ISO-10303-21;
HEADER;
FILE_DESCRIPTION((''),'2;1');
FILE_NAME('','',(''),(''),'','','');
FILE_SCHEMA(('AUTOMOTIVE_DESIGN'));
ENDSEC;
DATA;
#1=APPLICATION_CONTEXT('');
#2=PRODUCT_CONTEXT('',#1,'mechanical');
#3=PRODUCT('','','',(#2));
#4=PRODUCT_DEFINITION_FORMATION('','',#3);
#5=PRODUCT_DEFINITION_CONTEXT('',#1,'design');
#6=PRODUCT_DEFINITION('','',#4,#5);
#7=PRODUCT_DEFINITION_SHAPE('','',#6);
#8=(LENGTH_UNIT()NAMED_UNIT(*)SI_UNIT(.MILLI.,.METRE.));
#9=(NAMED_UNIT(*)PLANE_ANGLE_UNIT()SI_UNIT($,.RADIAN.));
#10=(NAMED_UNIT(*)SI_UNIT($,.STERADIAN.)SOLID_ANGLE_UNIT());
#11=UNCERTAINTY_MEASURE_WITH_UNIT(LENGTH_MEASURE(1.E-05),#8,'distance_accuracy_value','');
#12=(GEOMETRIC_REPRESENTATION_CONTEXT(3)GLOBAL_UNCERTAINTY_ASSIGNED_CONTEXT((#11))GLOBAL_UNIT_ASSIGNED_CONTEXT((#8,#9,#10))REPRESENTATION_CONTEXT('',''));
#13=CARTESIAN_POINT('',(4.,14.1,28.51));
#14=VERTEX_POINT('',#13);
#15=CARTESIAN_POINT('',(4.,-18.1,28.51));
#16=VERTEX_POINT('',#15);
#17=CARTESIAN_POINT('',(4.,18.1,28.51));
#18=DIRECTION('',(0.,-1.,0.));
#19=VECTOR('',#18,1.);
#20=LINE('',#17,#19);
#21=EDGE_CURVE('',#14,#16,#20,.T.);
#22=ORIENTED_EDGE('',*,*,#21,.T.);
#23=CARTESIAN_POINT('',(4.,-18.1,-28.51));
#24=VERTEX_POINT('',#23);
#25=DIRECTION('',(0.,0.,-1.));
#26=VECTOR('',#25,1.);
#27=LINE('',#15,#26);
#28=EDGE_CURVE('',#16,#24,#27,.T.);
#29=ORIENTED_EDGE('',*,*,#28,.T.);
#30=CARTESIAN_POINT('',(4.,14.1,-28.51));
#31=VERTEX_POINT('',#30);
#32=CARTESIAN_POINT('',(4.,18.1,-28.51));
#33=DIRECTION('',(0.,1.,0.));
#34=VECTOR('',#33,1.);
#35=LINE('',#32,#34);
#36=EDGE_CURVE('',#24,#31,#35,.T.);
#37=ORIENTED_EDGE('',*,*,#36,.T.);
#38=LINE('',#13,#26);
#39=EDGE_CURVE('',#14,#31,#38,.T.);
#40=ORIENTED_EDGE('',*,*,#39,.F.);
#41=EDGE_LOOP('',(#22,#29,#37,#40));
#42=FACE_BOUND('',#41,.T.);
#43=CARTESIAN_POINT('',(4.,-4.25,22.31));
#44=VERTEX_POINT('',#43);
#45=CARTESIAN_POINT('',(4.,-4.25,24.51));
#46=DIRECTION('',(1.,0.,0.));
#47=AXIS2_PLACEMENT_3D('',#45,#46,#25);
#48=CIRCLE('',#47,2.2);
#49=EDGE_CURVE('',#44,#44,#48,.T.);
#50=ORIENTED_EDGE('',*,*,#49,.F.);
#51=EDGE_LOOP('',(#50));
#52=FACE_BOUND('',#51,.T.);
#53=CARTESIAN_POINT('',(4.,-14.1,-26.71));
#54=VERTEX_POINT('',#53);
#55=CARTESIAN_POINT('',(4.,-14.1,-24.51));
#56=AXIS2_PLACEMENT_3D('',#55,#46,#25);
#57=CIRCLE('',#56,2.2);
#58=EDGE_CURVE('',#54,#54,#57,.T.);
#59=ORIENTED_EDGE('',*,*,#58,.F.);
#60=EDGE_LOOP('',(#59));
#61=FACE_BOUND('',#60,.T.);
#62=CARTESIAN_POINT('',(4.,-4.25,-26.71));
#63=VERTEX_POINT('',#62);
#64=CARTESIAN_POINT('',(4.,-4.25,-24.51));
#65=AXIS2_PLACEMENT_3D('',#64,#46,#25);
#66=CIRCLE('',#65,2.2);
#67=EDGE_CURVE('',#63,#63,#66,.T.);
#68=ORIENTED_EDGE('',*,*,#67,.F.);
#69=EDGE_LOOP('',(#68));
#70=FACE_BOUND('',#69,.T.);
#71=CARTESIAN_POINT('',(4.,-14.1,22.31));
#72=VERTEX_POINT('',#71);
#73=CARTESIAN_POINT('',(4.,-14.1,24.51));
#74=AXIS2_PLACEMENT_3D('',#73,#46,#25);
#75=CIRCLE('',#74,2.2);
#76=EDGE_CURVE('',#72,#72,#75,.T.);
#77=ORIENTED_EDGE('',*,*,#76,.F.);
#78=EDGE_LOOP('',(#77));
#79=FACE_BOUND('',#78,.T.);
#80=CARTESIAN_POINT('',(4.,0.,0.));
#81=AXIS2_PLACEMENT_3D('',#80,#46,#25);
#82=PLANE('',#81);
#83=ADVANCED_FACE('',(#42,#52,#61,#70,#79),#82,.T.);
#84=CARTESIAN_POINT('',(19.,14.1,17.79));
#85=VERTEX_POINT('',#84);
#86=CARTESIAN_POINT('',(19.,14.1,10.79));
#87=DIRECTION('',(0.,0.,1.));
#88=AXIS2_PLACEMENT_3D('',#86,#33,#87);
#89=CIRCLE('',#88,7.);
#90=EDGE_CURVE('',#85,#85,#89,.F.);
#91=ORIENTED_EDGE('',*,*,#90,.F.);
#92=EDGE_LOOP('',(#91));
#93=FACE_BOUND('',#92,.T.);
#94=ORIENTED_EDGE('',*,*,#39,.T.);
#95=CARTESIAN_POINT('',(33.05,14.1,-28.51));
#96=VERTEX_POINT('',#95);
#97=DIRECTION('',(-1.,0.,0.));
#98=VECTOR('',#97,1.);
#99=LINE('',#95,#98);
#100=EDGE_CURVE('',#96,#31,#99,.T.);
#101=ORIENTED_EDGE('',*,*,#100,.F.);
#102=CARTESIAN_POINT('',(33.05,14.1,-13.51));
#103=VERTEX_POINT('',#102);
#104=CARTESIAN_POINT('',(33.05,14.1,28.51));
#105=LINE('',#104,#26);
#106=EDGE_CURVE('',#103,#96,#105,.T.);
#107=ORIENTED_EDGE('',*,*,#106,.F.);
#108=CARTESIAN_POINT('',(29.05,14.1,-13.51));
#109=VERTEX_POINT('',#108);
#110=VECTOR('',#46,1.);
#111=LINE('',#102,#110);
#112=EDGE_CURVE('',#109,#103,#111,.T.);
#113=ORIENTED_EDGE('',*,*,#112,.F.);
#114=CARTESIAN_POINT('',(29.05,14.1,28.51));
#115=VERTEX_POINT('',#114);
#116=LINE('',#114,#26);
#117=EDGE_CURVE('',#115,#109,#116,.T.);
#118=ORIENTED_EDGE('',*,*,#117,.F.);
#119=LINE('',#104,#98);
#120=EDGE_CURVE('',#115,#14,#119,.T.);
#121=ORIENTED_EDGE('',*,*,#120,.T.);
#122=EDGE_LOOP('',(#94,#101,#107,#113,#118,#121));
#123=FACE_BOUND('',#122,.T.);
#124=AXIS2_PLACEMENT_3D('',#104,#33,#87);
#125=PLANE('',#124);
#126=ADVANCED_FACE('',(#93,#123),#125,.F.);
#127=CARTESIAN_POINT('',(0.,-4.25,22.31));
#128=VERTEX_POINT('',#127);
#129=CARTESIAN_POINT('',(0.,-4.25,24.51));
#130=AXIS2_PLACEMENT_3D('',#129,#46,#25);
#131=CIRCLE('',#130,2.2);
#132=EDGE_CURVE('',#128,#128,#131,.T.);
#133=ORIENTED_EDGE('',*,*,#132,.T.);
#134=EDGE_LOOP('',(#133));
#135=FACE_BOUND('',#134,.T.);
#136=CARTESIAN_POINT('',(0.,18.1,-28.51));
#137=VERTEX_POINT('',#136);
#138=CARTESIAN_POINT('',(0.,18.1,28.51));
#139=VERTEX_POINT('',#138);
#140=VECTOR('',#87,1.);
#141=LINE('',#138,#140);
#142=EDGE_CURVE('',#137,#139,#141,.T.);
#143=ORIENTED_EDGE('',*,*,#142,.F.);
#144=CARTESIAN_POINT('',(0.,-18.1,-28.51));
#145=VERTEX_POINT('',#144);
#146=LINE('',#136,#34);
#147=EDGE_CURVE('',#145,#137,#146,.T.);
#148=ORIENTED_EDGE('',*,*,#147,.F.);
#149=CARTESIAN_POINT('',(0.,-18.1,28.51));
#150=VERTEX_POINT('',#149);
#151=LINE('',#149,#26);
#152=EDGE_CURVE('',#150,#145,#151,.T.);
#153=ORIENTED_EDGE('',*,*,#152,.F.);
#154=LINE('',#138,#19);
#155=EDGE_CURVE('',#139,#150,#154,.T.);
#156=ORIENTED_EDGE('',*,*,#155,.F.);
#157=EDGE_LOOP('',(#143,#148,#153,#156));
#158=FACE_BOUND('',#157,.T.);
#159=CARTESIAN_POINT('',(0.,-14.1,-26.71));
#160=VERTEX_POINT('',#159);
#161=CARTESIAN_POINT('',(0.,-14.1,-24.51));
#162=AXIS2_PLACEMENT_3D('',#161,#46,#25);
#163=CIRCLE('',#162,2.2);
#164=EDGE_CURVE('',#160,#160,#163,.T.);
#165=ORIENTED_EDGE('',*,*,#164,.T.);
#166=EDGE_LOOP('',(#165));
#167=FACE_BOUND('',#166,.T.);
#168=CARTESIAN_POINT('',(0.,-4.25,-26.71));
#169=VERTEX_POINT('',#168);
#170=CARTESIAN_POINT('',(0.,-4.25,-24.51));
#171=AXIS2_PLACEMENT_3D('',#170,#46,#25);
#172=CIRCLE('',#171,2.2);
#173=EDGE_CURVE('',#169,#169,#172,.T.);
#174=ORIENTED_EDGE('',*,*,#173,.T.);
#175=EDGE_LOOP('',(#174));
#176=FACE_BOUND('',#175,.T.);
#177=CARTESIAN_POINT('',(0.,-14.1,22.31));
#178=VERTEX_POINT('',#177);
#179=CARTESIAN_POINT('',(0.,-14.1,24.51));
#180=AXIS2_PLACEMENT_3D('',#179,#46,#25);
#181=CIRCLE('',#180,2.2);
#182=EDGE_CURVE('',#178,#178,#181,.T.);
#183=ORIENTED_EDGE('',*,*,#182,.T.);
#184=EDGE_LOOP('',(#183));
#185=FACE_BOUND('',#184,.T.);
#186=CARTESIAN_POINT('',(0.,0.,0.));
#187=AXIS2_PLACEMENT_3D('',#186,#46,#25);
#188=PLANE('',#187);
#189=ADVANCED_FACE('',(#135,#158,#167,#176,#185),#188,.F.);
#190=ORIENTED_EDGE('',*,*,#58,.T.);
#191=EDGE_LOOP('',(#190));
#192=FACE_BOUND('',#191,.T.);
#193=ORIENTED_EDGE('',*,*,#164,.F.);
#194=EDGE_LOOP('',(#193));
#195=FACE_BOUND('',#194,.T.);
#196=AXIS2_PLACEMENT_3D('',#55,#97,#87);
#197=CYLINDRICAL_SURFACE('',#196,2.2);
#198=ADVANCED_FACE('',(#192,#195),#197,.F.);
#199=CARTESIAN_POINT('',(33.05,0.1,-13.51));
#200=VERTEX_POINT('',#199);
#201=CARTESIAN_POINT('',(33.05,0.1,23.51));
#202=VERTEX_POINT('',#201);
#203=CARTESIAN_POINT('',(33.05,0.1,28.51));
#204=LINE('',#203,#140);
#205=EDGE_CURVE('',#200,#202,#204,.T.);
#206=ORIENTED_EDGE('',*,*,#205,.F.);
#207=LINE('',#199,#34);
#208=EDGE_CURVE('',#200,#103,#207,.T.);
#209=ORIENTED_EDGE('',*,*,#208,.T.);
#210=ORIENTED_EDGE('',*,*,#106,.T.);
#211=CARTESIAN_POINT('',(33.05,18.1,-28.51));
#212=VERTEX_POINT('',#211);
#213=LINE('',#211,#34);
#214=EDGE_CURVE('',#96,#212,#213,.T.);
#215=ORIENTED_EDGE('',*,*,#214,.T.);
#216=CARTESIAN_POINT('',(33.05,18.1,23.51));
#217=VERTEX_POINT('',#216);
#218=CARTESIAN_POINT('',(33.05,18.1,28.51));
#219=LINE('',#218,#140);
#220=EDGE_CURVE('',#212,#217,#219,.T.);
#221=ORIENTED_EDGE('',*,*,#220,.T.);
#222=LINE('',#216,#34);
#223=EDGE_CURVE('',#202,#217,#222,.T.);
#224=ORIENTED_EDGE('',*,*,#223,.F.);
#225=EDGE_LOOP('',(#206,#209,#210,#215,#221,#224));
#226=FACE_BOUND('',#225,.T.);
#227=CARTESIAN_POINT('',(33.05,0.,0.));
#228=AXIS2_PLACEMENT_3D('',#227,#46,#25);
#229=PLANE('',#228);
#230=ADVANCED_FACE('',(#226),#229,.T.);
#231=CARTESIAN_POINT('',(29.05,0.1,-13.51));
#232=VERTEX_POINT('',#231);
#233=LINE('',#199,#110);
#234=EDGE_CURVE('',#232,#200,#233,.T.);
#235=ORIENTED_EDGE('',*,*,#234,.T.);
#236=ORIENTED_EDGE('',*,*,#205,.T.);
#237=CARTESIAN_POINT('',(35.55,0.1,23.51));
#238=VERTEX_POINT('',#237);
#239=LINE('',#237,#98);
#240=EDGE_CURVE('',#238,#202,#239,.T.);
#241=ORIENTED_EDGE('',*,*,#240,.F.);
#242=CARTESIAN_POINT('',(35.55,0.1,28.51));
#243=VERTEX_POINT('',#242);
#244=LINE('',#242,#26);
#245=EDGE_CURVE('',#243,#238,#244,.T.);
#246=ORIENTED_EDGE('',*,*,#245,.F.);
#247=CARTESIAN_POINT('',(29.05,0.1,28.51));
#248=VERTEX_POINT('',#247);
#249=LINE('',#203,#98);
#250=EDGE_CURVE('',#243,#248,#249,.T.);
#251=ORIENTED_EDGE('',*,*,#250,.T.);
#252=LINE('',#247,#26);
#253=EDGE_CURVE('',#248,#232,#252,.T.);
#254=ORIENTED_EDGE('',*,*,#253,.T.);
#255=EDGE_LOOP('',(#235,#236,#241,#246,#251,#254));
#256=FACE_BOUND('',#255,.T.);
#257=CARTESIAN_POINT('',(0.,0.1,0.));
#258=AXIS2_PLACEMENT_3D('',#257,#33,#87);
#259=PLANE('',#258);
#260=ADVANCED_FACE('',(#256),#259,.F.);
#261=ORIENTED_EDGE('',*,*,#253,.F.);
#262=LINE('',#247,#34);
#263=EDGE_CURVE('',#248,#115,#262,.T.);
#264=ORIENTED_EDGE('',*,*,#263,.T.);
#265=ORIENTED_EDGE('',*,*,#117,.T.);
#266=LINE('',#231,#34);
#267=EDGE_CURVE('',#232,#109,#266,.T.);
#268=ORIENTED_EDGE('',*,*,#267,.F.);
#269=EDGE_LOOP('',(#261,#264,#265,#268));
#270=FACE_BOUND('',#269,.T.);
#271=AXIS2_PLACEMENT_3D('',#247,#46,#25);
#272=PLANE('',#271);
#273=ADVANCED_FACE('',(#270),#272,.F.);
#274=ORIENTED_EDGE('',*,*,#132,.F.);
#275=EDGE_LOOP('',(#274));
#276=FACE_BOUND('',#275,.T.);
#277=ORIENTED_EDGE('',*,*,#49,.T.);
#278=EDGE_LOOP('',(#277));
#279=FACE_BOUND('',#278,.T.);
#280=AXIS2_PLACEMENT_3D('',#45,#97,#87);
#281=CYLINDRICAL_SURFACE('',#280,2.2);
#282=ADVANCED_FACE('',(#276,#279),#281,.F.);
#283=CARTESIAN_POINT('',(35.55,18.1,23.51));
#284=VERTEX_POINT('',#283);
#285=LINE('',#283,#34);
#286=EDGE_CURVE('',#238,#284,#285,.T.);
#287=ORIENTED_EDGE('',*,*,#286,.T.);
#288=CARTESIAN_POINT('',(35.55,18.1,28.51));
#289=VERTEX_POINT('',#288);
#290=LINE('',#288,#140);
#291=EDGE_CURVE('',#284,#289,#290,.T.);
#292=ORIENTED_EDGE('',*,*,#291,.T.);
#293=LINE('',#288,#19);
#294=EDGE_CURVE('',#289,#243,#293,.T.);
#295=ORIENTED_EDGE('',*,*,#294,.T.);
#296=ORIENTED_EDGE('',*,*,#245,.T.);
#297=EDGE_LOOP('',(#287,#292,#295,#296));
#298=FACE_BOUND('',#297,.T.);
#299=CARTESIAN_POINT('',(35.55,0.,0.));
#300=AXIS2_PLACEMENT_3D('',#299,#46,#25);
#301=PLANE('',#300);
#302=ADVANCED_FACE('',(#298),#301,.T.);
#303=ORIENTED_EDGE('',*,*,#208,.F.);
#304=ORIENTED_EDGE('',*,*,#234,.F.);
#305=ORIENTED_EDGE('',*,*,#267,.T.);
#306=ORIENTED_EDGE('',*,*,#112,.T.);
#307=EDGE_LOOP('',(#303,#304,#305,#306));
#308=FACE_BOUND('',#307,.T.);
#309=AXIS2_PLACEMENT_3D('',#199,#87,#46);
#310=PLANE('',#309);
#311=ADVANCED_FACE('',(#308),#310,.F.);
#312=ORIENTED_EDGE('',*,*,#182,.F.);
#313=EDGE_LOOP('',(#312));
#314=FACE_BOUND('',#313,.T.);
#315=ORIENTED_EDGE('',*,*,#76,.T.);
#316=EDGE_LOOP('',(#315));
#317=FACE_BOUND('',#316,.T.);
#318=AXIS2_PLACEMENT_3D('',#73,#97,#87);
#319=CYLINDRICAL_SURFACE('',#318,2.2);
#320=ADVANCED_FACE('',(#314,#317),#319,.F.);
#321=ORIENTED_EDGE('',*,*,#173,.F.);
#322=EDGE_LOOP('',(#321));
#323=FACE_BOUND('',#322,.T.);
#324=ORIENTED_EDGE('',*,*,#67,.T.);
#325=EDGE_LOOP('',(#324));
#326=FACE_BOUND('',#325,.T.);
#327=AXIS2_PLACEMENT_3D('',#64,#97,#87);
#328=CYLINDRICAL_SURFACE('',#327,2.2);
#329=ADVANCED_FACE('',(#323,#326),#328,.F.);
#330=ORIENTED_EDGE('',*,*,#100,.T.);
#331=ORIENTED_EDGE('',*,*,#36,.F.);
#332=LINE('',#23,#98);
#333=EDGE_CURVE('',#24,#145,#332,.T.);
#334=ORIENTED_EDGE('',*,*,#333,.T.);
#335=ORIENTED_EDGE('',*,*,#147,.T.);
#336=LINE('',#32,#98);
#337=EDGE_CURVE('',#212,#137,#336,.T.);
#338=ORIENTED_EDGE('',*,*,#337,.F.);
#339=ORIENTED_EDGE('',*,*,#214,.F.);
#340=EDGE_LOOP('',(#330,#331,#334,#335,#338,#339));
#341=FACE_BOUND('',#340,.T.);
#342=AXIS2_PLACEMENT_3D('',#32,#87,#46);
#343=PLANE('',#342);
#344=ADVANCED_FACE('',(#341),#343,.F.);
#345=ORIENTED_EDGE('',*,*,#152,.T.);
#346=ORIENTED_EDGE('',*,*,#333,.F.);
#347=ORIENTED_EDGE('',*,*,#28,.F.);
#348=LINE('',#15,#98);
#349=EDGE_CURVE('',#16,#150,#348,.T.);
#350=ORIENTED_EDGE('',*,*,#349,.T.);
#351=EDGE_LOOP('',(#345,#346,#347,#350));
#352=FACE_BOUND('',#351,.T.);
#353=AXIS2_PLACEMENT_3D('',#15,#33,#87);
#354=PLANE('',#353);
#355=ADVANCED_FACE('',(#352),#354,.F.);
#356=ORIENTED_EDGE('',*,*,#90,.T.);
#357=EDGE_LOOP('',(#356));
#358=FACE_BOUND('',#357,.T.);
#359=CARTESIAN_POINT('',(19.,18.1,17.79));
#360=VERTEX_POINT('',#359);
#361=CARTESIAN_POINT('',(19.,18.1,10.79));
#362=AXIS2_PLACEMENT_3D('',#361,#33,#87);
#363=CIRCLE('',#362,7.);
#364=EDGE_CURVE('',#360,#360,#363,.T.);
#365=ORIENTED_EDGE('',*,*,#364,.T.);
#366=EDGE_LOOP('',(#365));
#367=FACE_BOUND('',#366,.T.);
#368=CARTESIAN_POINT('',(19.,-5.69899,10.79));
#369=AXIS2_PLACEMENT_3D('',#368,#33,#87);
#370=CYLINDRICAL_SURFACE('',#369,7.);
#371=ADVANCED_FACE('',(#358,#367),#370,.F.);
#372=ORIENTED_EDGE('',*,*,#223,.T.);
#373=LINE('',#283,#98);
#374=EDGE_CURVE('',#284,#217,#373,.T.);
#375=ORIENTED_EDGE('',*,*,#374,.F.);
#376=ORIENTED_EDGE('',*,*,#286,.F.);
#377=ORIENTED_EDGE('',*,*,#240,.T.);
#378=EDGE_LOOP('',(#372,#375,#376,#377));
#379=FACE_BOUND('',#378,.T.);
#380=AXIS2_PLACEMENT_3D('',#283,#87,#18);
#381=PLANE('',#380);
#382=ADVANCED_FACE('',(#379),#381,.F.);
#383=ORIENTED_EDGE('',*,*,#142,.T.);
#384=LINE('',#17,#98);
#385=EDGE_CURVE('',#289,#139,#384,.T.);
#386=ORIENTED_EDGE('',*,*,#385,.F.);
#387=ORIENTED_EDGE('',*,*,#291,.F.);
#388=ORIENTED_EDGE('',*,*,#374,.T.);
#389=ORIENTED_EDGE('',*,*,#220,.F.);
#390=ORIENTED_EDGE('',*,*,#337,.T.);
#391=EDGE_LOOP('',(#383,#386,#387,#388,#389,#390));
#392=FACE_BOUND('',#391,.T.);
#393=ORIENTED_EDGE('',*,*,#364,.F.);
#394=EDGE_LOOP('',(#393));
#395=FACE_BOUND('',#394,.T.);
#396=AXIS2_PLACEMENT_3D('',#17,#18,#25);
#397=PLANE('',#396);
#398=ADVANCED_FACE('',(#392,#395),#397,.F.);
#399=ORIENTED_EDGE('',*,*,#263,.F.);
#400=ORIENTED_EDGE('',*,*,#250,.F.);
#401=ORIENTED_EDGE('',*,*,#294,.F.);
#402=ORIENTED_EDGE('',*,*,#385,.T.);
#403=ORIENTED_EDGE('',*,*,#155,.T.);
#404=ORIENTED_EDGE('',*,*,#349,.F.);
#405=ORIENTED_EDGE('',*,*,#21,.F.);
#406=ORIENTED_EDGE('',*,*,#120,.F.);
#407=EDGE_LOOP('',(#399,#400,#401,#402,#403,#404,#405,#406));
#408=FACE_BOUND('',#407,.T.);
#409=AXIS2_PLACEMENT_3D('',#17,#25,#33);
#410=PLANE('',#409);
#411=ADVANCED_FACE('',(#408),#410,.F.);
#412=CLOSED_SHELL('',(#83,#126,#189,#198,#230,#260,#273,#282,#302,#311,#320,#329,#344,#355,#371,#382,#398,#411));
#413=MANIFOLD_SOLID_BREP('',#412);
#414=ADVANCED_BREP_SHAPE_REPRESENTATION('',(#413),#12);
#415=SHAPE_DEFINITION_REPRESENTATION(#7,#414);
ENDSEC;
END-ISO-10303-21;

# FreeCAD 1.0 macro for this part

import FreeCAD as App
import Part
import Sketcher
Q = App.Units.Quantity


def add_polygon(sketch, points):
    """Adds a closed chain of lines whose ends are joined by coincident constraints."""
    first, n = sketch.GeometryCount, len(points)
    for a, b in zip(points, points[1:] + points[:1]):
        sketch.addGeometry(Part.LineSegment(App.Vector(*a, 0), App.Vector(*b, 0)), False)
    for i in range(n):
        sketch.addConstraint(Sketcher.Constraint("Coincident", first + i, 2, first + (i + 1) % n, 1))

doc = App.newDocument("Part")
body = doc.addObject("PartDesign::Body", "Body")

# Sketch on YZ plane
sketch1 = body.newObject("Sketcher::SketchObject", "Sketch")
sketch1.AttachmentSupport = (doc.getObject("YZ_Plane"), [""])
sketch1.MapMode = "FlatFace"
add_polygon(sketch1, [(18.1, 28.5), (-18.1, 28.5), (-18.1, -28.5), (18.1, -28.5)])  # lines 0-3
sketch1.addGeometry(Part.Circle(App.Vector(-14.1, 24.5, 0), App.Vector(0, 0, 1), 2.2), False)  # 4
sketch1.addGeometry(Part.Circle(App.Vector(-14.1, -24.5, 0), App.Vector(0, 0, 1), 2.2), False)  # 5
sketch1.addGeometry(Part.Circle(App.Vector(-4.2, 24.5, 0), App.Vector(0, 0, 1), 2.2), False)  # 6
sketch1.addGeometry(Part.Circle(App.Vector(-4.2, -24.5, 0), App.Vector(0, 0, 1), 2.2), False)  # 7
sketch1.addConstraint([
    Sketcher.Constraint("Horizontal", 0),
    Sketcher.Constraint("Vertical", 1),
    Sketcher.Constraint("Horizontal", 2),
    Sketcher.Constraint("Vertical", 3),
    Sketcher.Constraint("Equal", 4, 5),
    Sketcher.Constraint("Equal", 5, 6),
    Sketcher.Constraint("Equal", 6, 7),
    Sketcher.Constraint("Symmetric", 0, 2, 2, 2, -1, 1),
    Sketcher.Constraint("Symmetric", 4, 3, 5, 3, -1),
    Sketcher.Constraint("Symmetric", 6, 3, 7, 3, -1),
    Sketcher.Constraint("Horizontal", 4, 3, 6, 3),
    Sketcher.Constraint("Diameter", 4, Q("4.4 mm")),
    Sketcher.Constraint("DistanceX", 0, 2, 0, 1, Q("36.2 mm")),
    Sketcher.Constraint("DistanceX", 0, 2, 4, 3, Q("4 mm")),
    Sketcher.Constraint("DistanceY", 4, 3, 0, 2, Q("4 mm")),
    Sketcher.Constraint("DistanceY", 1, 2, 1, 1, Q("57.02 mm")),
    Sketcher.Constraint("DistanceX", 6, 3, -1, 1, Q("4.25 mm")),
])
pad1 = body.newObject("PartDesign::Pad", "Pad")
pad1.Profile = sketch1
pad1.Length = 4

# Sketch on YZ plane
sketch2 = body.newObject("Sketcher::SketchObject", "Sketch001")
sketch2.AttachmentSupport = (doc.getObject("YZ_Plane"), [""])
sketch2.MapMode = "FlatFace"
sketch2.AttachmentOffset = App.Placement(App.Vector(0, 0, 4), App.Rotation())
add_polygon(sketch2, [(18.1, 28.5), (14.1, 28.5), (14.1, -28.5), (18.1, -28.5)])  # lines 0-3
sketch2.addConstraint([
    Sketcher.Constraint("Horizontal", 0),
    Sketcher.Constraint("Vertical", 1),
    Sketcher.Constraint("Horizontal", 2),
    Sketcher.Constraint("Vertical", 3),
    Sketcher.Constraint("DistanceX", 0, 2, 0, 1, Q("4 mm")),
    Sketcher.Constraint("DistanceY", 1, 2, 1, 1, Q("57.02 mm")),
    Sketcher.Constraint("DistanceX", -1, 1, 0, 2, Q("14.1 mm")),
    Sketcher.Constraint("DistanceY", -1, 1, 0, 2, Q("28.51 mm")),
])
pad2 = body.newObject("PartDesign::Pad", "Pad001")
pad2.Profile = sketch2
pad2.Length = 29.05

# Sketch on XZ plane
sketch3 = body.newObject("Sketcher::SketchObject", "Sketch002")
sketch3.AttachmentSupport = (doc.getObject("XZ_Plane"), [""])
sketch3.MapMode = "FlatFace"
sketch3.AttachmentOffset = App.Placement(App.Vector(0, 0, -14.1), App.Rotation())
add_polygon(sketch3, [(29.1, 28.5), (29.1, -13.5), (33, -13.5), (33, 28.5)])  # lines 0-3
sketch3.addConstraint([
    Sketcher.Constraint("Vertical", 0),
    Sketcher.Constraint("Horizontal", 1),
    Sketcher.Constraint("Vertical", 2),
    Sketcher.Constraint("Horizontal", 3),
    Sketcher.Constraint("DistanceX", 1, 1, 1, 2, Q("4 mm")),
    Sketcher.Constraint("DistanceY", 0, 2, 0, 1, Q("42.02 mm")),
    Sketcher.Constraint("DistanceX", -1, 1, 0, 2, Q("29.05 mm")),
    Sketcher.Constraint("DistanceY", 0, 2, -1, 1, Q("13.51 mm")),
])
pad3 = body.newObject("PartDesign::Pad", "Pad002")
pad3.Profile = sketch3
pad3.Length = 14

# Sketch on XZ plane
sketch4 = body.newObject("Sketcher::SketchObject", "Sketch003")
sketch4.AttachmentSupport = (doc.getObject("XZ_Plane"), [""])
sketch4.MapMode = "FlatFace"
sketch4.AttachmentOffset = App.Placement(App.Vector(0, 0, -18.1), App.Rotation())
sketch4.addGeometry(Part.Circle(App.Vector(19, 11, 0), App.Vector(0, 0, 1), 7), False)
sketch4.addConstraint([
    Sketcher.Constraint("Diameter", 0, Q("14 mm")),
    Sketcher.Constraint("DistanceX", -1, 1, 0, 3, Q("19 mm")),
    Sketcher.Constraint("DistanceY", -1, 1, 0, 3, Q("10.79 mm")),
])
pocket1 = body.newObject("PartDesign::Pocket", "Pocket")
pocket1.Profile = sketch4
pocket1.Length = 4
pocket1.Reversed = True

# Sketch on YZ plane
sketch5 = body.newObject("Sketcher::SketchObject", "Sketch004")
sketch5.AttachmentSupport = (doc.getObject("YZ_Plane"), [""])
sketch5.MapMode = "FlatFace"
sketch5.AttachmentOffset = App.Placement(App.Vector(0, 0, 33.05), App.Rotation())
add_polygon(sketch5, [(18, 29), (0, 29), (0, 24), (18, 24)])  # lines 0-3
sketch5.addConstraint([
    Sketcher.Constraint("Horizontal", 0),
    Sketcher.Constraint("Vertical", 1),
    Sketcher.Constraint("Horizontal", 2),
    Sketcher.Constraint("Vertical", 3),
    Sketcher.Constraint("DistanceX", 0, 2, 0, 1, Q("18 mm")),
    Sketcher.Constraint("DistanceY", 1, 2, 1, 1, Q("5 mm")),
    Sketcher.Constraint("DistanceX", -1, 1, 0, 2, Q("0.1 mm")),
    Sketcher.Constraint("DistanceY", -1, 1, 0, 2, Q("28.51 mm")),
])
pad4 = body.newObject("PartDesign::Pad", "Pad003")
pad4.Profile = sketch5
pad4.Length = 2.5

doc.recompute()
